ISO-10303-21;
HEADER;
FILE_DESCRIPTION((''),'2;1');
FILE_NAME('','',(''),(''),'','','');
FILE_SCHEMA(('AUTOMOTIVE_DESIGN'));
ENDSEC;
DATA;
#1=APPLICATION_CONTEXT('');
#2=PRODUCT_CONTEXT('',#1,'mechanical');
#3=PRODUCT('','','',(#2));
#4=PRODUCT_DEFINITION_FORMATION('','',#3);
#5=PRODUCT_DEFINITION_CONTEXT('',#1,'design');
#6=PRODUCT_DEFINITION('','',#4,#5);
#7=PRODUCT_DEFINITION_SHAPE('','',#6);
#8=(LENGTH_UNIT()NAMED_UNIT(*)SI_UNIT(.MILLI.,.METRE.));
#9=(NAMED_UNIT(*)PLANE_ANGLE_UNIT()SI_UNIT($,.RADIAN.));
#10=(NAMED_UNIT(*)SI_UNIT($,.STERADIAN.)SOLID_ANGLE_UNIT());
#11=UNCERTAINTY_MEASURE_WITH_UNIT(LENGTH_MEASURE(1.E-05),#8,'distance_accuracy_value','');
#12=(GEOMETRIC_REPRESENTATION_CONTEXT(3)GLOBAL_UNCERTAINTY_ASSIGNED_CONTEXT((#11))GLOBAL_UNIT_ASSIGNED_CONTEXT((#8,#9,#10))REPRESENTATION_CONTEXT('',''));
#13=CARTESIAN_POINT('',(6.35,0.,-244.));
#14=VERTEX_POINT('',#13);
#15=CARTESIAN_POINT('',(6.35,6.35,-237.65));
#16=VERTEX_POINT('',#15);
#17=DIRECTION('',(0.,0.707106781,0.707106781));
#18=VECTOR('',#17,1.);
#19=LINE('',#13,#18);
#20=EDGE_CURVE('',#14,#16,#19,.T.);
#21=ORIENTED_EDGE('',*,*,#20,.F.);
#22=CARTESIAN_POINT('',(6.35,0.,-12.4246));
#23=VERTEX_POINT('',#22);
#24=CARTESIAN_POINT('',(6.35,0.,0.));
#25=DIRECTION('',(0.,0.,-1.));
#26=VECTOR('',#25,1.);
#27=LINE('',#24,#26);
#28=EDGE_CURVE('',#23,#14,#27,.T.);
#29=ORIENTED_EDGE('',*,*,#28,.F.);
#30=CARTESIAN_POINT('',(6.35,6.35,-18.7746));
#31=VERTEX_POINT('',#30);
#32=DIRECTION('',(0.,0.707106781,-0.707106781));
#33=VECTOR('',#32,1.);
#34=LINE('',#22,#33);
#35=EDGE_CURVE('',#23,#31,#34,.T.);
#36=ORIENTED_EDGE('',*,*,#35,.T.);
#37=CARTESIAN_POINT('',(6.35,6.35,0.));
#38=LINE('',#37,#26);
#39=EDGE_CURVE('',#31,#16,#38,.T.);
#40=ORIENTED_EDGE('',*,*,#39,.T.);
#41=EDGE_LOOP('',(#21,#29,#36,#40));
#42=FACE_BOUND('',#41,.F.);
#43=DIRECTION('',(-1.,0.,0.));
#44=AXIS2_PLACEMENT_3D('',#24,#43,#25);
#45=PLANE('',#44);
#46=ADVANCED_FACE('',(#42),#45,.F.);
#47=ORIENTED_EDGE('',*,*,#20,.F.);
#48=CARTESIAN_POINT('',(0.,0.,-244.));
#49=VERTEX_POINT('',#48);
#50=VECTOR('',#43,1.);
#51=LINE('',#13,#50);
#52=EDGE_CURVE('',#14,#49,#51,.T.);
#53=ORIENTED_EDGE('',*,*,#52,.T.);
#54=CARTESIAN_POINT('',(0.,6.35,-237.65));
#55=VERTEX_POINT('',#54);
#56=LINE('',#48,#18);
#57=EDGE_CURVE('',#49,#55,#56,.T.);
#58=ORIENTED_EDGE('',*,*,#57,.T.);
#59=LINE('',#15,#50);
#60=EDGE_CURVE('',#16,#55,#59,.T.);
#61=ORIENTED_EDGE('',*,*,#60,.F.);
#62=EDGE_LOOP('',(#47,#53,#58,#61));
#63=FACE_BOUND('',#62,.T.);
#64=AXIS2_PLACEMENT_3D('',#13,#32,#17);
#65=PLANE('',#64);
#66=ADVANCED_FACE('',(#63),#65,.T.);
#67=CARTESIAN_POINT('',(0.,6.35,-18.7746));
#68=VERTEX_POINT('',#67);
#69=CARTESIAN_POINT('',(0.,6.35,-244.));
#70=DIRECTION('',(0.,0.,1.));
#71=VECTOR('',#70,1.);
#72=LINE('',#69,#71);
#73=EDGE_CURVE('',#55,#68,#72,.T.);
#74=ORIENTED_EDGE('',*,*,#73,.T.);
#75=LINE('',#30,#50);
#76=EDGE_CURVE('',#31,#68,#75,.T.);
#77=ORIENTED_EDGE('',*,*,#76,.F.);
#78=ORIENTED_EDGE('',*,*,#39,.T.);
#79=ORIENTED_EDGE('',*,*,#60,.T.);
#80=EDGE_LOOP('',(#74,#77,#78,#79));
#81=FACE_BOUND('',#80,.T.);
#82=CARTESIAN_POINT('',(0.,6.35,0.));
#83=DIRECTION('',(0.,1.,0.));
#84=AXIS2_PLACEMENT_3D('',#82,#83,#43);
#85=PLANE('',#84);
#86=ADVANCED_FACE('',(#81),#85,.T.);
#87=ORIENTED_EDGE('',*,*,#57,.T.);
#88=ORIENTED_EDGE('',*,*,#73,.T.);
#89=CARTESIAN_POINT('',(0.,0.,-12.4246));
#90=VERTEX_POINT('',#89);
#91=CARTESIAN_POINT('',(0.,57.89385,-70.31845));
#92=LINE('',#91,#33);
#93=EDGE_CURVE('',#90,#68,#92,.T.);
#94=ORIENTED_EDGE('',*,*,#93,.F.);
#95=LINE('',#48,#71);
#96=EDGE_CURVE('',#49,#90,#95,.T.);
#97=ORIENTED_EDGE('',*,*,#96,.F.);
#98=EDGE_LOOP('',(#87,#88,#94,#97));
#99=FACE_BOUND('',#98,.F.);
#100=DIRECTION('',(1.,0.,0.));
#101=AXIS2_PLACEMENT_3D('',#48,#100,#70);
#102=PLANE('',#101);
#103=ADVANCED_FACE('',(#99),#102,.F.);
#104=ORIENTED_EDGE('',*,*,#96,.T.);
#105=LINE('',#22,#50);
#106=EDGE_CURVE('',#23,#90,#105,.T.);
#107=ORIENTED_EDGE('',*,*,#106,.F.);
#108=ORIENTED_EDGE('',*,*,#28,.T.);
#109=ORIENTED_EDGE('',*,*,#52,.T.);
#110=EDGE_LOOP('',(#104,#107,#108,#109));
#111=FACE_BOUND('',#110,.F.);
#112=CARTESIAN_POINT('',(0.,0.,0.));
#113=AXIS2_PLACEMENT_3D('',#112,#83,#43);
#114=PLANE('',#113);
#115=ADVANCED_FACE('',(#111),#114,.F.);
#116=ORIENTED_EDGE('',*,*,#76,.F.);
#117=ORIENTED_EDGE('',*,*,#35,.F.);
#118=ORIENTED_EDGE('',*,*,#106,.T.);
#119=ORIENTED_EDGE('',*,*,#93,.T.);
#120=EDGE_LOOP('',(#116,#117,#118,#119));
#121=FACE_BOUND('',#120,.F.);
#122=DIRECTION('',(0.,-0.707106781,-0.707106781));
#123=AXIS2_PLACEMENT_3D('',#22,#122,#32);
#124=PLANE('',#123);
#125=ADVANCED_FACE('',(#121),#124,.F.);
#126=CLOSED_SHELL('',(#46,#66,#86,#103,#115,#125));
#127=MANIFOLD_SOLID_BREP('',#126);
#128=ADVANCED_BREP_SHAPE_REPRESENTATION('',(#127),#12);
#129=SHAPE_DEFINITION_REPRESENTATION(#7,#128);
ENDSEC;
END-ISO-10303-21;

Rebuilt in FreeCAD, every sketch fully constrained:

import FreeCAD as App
import Part
import Sketcher

V = App.Vector
Q = App.Units.Quantity


def add_polygon(sketch, points):
    """Adds a closed chain of lines whose ends are joined by coincident constraints."""
    first, n = sketch.GeometryCount, len(points)
    for a, b in zip(points, points[1:] + points[:1]):
        sketch.addGeometry(Part.LineSegment(App.Vector(*a, 0), App.Vector(*b, 0)), False)
    for i in range(n):
        sketch.addConstraint(Sketcher.Constraint("Coincident", first + i, 2, first + (i + 1) % n, 1))

doc = App.newDocument("Part")
body = doc.addObject("PartDesign::Body", "Body")

# Sketch on XZ plane
sketch1 = doc.addObject("Sketcher::SketchObject", "Sketch")
body.addObject(sketch1)
sketch1.AttachmentSupport = (doc.XZ_Plane, [""])
sketch1.MapMode = "FlatFace"
add_polygon(sketch1, [(0, -244), (0, 0), (6, 0), (6, -244)])  # lines 0-3
sketch1.addConstraint([
    Sketcher.Constraint("Vertical", 0),
    Sketcher.Constraint("Horizontal", 1),
    Sketcher.Constraint("Vertical", 2),
    Sketcher.Constraint("Horizontal", 3),
    Sketcher.Constraint("Coincident", 0, 2, -1, 1),
    Sketcher.Constraint("DistanceX", 1, 1, 1, 2, Q("0.25 in")),
    Sketcher.Constraint("DistanceY", 0, 1, 0, 2, Q("9.6063 in")),
])
pad1 = doc.addObject("PartDesign::Pad", "Pad")
body.addObject(pad1)
pad1.Profile = sketch1
pad1.Length = Q("0.25 in")
pad1.Reversed = True

# Sketch on YZ plane
sketch2 = doc.addObject("Sketcher::SketchObject", "Sketch001")
body.addObject(sketch2)
sketch2.AttachmentSupport = (doc.YZ_Plane, [""])
sketch2.MapMode = "FlatFace"
sketch2.AttachmentOffset = App.Placement(V(0, 0, 0.25 * 25.4), App.Rotation())
add_polygon(sketch2, [(6, 0), (0, 0), (6, -6)])  # lines 0-2
sketch2.addConstraint([
    Sketcher.Constraint("Horizontal", 0),
    Sketcher.Constraint("Vertical", 2),
    Sketcher.Constraint("Coincident", 0, 2, -1, 1),
    Sketcher.Constraint("Equal", 0, 2),
    Sketcher.Constraint("DistanceX", 0, 2, 0, 1, Q("0.25 in")),
])
pocket1 = doc.addObject("PartDesign::Pocket", "Pocket")
body.addObject(pocket1)
pocket1.Profile = sketch2
pocket1.Length = Q("0.3937008 in")

# Sketch on YZ plane
sketch3 = doc.addObject("Sketcher::SketchObject", "Sketch002")
body.addObject(sketch3)
sketch3.AttachmentSupport = (doc.YZ_Plane, [""])
sketch3.MapMode = "FlatFace"
sketch3.AttachmentOffset = App.Placement(V(0, 0, 0.25 * 25.4), App.Rotation())
add_polygon(sketch3, [(6, -238), (0, -244), (6, -244)])  # lines 0-2
sketch3.addConstraint([
    Sketcher.Constraint("Horizontal", 1),
    Sketcher.Constraint("Vertical", 2),
    Sketcher.Constraint("PointOnObject", 0, 2, -2),
    Sketcher.Constraint("Equal", 1, 2),
    Sketcher.Constraint("DistanceX", 1, 1, 1, 2, Q("0.25 in")),
    Sketcher.Constraint("DistanceY", 0, 2, -1, 1, Q("9.6063 in")),
])
pocket2 = doc.addObject("PartDesign::Pocket", "Pocket001")
body.addObject(pocket2)
pocket2.Profile = sketch3
pocket2.Length = Q("0.3937008 in")

# Sketch on YZ plane
sketch4 = doc.addObject("Sketcher::SketchObject", "Sketch003")
body.addObject(sketch4)
sketch4.AttachmentSupport = (doc.YZ_Plane, [""])
sketch4.MapMode = "FlatFace"
sketch4.AttachmentOffset = App.Placement(V(0, 0, 0.25 * 25.4), App.Rotation())
add_polygon(sketch4, [(6, -6), (0, 0), (0, -12), (6, -12)])  # lines 0-3
sketch4.addConstraint([
    Sketcher.Constraint("Vertical", 1),
    Sketcher.Constraint("Horizontal", 2),
    Sketcher.Constraint("Vertical", 3),
    Sketcher.Constraint("Coincident", 0, 2, -1, 1),
    Sketcher.Constraint("DistanceX", 2, 1, 2, 2, Q("0.25 in")),
    Sketcher.Constraint("DistanceY", 3, 2, -1, 1, Q("0.25 in")),
    Sketcher.Constraint("DistanceY", 1, 2, 1, 1, Q("12.4246 mm")),
])
pocket3 = doc.addObject("PartDesign::Pocket", "Pocket002")
body.addObject(pocket3)
pocket3.Profile = sketch4
pocket3.Length = Q("0.3937008 in")

# Sketch on YZ plane
sketch5 = doc.addObject("Sketcher::SketchObject", "Sketch004")
body.addObject(sketch5)
sketch5.AttachmentSupport = (doc.YZ_Plane, [""])
sketch5.MapMode = "FlatFace"
sketch5.AttachmentOffset = App.Placement(V(0, 0, 0.25 * 25.4), App.Rotation())
add_polygon(sketch5, [(6, -19), (6, -12), (0, -12)])  # lines 0-2
sketch5.addConstraint([
    Sketcher.Constraint("Vertical", 0),
    Sketcher.Constraint("Horizontal", 1),
    Sketcher.Constraint("PointOnObject", 1, 2, -2),
    Sketcher.Constraint("Equal", 1, 0),
    Sketcher.Constraint("DistanceX", 1, 2, 1, 1, Q("0.25 in")),
    Sketcher.Constraint("DistanceY", 0, 2, -1, 1, Q("12.4246 mm")),
])
pocket4 = doc.addObject("PartDesign::Pocket", "Pocket003")
body.addObject(pocket4)
pocket4.Profile = sketch5
pocket4.Length = Q("0.3937008 in")

doc.recompute()
